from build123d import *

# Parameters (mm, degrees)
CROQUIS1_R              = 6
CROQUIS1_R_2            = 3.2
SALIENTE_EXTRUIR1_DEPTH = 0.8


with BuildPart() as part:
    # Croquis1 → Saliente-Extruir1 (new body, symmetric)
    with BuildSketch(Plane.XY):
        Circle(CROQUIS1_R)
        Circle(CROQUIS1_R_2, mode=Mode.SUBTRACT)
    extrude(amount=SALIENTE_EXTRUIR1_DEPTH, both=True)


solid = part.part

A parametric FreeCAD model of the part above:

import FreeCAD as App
import Part
import Sketcher
Q = App.Units.Quantity

doc = App.newDocument("Part")
params = doc.addObject("Spreadsheet::Sheet", "Params")
for row, (alias, value) in enumerate([
    ("sketch1_diameter", "12 mm"),
    ("sketch1_diameter2", "6.4 mm"),
    ("pad1_length", "1.6 mm"),
], start=1):
    params.set(f"A{row}", alias)
    params.set(f"B{row}", "=" + value)
    params.setAlias(f"B{row}", alias)

body = doc.addObject("PartDesign::Body", "Body")

sketch1 = doc.addObject("Sketcher::SketchObject", "Sketch")
body.addObject(sketch1)
sketch1.AttachmentSupport = (doc.XY_Plane, [""])
sketch1.MapMode = "FlatFace"
sketch1.addGeometry([
    Part.Circle(App.Vector(0, 0, 0), App.Vector(0, 0, 1), 6),
    Part.Circle(App.Vector(0, 0, 0), App.Vector(0, 0, 1), 3.2),
], False)
sketch1.addConstraint([
    Sketcher.Constraint("Coincident", 0, 3, -1, 1),
    Sketcher.Constraint("Coincident", 1, 3, -1, 1),
    Sketcher.Constraint("Diameter", 0, Q("12 mm")),
    Sketcher.Constraint("Diameter", 1, Q("6.4 mm")),
])
sketch1.setExpression("Constraints[2]", "Params.sketch1_diameter")
sketch1.setExpression("Constraints[3]", "Params.sketch1_diameter2")
pad1 = doc.addObject("PartDesign::Pad", "Pad")
body.addObject(pad1)
pad1.Profile = sketch1
pad1.setExpression("Length", "Params.pad1_length")
pad1.Midplane = True

doc.recompute()
